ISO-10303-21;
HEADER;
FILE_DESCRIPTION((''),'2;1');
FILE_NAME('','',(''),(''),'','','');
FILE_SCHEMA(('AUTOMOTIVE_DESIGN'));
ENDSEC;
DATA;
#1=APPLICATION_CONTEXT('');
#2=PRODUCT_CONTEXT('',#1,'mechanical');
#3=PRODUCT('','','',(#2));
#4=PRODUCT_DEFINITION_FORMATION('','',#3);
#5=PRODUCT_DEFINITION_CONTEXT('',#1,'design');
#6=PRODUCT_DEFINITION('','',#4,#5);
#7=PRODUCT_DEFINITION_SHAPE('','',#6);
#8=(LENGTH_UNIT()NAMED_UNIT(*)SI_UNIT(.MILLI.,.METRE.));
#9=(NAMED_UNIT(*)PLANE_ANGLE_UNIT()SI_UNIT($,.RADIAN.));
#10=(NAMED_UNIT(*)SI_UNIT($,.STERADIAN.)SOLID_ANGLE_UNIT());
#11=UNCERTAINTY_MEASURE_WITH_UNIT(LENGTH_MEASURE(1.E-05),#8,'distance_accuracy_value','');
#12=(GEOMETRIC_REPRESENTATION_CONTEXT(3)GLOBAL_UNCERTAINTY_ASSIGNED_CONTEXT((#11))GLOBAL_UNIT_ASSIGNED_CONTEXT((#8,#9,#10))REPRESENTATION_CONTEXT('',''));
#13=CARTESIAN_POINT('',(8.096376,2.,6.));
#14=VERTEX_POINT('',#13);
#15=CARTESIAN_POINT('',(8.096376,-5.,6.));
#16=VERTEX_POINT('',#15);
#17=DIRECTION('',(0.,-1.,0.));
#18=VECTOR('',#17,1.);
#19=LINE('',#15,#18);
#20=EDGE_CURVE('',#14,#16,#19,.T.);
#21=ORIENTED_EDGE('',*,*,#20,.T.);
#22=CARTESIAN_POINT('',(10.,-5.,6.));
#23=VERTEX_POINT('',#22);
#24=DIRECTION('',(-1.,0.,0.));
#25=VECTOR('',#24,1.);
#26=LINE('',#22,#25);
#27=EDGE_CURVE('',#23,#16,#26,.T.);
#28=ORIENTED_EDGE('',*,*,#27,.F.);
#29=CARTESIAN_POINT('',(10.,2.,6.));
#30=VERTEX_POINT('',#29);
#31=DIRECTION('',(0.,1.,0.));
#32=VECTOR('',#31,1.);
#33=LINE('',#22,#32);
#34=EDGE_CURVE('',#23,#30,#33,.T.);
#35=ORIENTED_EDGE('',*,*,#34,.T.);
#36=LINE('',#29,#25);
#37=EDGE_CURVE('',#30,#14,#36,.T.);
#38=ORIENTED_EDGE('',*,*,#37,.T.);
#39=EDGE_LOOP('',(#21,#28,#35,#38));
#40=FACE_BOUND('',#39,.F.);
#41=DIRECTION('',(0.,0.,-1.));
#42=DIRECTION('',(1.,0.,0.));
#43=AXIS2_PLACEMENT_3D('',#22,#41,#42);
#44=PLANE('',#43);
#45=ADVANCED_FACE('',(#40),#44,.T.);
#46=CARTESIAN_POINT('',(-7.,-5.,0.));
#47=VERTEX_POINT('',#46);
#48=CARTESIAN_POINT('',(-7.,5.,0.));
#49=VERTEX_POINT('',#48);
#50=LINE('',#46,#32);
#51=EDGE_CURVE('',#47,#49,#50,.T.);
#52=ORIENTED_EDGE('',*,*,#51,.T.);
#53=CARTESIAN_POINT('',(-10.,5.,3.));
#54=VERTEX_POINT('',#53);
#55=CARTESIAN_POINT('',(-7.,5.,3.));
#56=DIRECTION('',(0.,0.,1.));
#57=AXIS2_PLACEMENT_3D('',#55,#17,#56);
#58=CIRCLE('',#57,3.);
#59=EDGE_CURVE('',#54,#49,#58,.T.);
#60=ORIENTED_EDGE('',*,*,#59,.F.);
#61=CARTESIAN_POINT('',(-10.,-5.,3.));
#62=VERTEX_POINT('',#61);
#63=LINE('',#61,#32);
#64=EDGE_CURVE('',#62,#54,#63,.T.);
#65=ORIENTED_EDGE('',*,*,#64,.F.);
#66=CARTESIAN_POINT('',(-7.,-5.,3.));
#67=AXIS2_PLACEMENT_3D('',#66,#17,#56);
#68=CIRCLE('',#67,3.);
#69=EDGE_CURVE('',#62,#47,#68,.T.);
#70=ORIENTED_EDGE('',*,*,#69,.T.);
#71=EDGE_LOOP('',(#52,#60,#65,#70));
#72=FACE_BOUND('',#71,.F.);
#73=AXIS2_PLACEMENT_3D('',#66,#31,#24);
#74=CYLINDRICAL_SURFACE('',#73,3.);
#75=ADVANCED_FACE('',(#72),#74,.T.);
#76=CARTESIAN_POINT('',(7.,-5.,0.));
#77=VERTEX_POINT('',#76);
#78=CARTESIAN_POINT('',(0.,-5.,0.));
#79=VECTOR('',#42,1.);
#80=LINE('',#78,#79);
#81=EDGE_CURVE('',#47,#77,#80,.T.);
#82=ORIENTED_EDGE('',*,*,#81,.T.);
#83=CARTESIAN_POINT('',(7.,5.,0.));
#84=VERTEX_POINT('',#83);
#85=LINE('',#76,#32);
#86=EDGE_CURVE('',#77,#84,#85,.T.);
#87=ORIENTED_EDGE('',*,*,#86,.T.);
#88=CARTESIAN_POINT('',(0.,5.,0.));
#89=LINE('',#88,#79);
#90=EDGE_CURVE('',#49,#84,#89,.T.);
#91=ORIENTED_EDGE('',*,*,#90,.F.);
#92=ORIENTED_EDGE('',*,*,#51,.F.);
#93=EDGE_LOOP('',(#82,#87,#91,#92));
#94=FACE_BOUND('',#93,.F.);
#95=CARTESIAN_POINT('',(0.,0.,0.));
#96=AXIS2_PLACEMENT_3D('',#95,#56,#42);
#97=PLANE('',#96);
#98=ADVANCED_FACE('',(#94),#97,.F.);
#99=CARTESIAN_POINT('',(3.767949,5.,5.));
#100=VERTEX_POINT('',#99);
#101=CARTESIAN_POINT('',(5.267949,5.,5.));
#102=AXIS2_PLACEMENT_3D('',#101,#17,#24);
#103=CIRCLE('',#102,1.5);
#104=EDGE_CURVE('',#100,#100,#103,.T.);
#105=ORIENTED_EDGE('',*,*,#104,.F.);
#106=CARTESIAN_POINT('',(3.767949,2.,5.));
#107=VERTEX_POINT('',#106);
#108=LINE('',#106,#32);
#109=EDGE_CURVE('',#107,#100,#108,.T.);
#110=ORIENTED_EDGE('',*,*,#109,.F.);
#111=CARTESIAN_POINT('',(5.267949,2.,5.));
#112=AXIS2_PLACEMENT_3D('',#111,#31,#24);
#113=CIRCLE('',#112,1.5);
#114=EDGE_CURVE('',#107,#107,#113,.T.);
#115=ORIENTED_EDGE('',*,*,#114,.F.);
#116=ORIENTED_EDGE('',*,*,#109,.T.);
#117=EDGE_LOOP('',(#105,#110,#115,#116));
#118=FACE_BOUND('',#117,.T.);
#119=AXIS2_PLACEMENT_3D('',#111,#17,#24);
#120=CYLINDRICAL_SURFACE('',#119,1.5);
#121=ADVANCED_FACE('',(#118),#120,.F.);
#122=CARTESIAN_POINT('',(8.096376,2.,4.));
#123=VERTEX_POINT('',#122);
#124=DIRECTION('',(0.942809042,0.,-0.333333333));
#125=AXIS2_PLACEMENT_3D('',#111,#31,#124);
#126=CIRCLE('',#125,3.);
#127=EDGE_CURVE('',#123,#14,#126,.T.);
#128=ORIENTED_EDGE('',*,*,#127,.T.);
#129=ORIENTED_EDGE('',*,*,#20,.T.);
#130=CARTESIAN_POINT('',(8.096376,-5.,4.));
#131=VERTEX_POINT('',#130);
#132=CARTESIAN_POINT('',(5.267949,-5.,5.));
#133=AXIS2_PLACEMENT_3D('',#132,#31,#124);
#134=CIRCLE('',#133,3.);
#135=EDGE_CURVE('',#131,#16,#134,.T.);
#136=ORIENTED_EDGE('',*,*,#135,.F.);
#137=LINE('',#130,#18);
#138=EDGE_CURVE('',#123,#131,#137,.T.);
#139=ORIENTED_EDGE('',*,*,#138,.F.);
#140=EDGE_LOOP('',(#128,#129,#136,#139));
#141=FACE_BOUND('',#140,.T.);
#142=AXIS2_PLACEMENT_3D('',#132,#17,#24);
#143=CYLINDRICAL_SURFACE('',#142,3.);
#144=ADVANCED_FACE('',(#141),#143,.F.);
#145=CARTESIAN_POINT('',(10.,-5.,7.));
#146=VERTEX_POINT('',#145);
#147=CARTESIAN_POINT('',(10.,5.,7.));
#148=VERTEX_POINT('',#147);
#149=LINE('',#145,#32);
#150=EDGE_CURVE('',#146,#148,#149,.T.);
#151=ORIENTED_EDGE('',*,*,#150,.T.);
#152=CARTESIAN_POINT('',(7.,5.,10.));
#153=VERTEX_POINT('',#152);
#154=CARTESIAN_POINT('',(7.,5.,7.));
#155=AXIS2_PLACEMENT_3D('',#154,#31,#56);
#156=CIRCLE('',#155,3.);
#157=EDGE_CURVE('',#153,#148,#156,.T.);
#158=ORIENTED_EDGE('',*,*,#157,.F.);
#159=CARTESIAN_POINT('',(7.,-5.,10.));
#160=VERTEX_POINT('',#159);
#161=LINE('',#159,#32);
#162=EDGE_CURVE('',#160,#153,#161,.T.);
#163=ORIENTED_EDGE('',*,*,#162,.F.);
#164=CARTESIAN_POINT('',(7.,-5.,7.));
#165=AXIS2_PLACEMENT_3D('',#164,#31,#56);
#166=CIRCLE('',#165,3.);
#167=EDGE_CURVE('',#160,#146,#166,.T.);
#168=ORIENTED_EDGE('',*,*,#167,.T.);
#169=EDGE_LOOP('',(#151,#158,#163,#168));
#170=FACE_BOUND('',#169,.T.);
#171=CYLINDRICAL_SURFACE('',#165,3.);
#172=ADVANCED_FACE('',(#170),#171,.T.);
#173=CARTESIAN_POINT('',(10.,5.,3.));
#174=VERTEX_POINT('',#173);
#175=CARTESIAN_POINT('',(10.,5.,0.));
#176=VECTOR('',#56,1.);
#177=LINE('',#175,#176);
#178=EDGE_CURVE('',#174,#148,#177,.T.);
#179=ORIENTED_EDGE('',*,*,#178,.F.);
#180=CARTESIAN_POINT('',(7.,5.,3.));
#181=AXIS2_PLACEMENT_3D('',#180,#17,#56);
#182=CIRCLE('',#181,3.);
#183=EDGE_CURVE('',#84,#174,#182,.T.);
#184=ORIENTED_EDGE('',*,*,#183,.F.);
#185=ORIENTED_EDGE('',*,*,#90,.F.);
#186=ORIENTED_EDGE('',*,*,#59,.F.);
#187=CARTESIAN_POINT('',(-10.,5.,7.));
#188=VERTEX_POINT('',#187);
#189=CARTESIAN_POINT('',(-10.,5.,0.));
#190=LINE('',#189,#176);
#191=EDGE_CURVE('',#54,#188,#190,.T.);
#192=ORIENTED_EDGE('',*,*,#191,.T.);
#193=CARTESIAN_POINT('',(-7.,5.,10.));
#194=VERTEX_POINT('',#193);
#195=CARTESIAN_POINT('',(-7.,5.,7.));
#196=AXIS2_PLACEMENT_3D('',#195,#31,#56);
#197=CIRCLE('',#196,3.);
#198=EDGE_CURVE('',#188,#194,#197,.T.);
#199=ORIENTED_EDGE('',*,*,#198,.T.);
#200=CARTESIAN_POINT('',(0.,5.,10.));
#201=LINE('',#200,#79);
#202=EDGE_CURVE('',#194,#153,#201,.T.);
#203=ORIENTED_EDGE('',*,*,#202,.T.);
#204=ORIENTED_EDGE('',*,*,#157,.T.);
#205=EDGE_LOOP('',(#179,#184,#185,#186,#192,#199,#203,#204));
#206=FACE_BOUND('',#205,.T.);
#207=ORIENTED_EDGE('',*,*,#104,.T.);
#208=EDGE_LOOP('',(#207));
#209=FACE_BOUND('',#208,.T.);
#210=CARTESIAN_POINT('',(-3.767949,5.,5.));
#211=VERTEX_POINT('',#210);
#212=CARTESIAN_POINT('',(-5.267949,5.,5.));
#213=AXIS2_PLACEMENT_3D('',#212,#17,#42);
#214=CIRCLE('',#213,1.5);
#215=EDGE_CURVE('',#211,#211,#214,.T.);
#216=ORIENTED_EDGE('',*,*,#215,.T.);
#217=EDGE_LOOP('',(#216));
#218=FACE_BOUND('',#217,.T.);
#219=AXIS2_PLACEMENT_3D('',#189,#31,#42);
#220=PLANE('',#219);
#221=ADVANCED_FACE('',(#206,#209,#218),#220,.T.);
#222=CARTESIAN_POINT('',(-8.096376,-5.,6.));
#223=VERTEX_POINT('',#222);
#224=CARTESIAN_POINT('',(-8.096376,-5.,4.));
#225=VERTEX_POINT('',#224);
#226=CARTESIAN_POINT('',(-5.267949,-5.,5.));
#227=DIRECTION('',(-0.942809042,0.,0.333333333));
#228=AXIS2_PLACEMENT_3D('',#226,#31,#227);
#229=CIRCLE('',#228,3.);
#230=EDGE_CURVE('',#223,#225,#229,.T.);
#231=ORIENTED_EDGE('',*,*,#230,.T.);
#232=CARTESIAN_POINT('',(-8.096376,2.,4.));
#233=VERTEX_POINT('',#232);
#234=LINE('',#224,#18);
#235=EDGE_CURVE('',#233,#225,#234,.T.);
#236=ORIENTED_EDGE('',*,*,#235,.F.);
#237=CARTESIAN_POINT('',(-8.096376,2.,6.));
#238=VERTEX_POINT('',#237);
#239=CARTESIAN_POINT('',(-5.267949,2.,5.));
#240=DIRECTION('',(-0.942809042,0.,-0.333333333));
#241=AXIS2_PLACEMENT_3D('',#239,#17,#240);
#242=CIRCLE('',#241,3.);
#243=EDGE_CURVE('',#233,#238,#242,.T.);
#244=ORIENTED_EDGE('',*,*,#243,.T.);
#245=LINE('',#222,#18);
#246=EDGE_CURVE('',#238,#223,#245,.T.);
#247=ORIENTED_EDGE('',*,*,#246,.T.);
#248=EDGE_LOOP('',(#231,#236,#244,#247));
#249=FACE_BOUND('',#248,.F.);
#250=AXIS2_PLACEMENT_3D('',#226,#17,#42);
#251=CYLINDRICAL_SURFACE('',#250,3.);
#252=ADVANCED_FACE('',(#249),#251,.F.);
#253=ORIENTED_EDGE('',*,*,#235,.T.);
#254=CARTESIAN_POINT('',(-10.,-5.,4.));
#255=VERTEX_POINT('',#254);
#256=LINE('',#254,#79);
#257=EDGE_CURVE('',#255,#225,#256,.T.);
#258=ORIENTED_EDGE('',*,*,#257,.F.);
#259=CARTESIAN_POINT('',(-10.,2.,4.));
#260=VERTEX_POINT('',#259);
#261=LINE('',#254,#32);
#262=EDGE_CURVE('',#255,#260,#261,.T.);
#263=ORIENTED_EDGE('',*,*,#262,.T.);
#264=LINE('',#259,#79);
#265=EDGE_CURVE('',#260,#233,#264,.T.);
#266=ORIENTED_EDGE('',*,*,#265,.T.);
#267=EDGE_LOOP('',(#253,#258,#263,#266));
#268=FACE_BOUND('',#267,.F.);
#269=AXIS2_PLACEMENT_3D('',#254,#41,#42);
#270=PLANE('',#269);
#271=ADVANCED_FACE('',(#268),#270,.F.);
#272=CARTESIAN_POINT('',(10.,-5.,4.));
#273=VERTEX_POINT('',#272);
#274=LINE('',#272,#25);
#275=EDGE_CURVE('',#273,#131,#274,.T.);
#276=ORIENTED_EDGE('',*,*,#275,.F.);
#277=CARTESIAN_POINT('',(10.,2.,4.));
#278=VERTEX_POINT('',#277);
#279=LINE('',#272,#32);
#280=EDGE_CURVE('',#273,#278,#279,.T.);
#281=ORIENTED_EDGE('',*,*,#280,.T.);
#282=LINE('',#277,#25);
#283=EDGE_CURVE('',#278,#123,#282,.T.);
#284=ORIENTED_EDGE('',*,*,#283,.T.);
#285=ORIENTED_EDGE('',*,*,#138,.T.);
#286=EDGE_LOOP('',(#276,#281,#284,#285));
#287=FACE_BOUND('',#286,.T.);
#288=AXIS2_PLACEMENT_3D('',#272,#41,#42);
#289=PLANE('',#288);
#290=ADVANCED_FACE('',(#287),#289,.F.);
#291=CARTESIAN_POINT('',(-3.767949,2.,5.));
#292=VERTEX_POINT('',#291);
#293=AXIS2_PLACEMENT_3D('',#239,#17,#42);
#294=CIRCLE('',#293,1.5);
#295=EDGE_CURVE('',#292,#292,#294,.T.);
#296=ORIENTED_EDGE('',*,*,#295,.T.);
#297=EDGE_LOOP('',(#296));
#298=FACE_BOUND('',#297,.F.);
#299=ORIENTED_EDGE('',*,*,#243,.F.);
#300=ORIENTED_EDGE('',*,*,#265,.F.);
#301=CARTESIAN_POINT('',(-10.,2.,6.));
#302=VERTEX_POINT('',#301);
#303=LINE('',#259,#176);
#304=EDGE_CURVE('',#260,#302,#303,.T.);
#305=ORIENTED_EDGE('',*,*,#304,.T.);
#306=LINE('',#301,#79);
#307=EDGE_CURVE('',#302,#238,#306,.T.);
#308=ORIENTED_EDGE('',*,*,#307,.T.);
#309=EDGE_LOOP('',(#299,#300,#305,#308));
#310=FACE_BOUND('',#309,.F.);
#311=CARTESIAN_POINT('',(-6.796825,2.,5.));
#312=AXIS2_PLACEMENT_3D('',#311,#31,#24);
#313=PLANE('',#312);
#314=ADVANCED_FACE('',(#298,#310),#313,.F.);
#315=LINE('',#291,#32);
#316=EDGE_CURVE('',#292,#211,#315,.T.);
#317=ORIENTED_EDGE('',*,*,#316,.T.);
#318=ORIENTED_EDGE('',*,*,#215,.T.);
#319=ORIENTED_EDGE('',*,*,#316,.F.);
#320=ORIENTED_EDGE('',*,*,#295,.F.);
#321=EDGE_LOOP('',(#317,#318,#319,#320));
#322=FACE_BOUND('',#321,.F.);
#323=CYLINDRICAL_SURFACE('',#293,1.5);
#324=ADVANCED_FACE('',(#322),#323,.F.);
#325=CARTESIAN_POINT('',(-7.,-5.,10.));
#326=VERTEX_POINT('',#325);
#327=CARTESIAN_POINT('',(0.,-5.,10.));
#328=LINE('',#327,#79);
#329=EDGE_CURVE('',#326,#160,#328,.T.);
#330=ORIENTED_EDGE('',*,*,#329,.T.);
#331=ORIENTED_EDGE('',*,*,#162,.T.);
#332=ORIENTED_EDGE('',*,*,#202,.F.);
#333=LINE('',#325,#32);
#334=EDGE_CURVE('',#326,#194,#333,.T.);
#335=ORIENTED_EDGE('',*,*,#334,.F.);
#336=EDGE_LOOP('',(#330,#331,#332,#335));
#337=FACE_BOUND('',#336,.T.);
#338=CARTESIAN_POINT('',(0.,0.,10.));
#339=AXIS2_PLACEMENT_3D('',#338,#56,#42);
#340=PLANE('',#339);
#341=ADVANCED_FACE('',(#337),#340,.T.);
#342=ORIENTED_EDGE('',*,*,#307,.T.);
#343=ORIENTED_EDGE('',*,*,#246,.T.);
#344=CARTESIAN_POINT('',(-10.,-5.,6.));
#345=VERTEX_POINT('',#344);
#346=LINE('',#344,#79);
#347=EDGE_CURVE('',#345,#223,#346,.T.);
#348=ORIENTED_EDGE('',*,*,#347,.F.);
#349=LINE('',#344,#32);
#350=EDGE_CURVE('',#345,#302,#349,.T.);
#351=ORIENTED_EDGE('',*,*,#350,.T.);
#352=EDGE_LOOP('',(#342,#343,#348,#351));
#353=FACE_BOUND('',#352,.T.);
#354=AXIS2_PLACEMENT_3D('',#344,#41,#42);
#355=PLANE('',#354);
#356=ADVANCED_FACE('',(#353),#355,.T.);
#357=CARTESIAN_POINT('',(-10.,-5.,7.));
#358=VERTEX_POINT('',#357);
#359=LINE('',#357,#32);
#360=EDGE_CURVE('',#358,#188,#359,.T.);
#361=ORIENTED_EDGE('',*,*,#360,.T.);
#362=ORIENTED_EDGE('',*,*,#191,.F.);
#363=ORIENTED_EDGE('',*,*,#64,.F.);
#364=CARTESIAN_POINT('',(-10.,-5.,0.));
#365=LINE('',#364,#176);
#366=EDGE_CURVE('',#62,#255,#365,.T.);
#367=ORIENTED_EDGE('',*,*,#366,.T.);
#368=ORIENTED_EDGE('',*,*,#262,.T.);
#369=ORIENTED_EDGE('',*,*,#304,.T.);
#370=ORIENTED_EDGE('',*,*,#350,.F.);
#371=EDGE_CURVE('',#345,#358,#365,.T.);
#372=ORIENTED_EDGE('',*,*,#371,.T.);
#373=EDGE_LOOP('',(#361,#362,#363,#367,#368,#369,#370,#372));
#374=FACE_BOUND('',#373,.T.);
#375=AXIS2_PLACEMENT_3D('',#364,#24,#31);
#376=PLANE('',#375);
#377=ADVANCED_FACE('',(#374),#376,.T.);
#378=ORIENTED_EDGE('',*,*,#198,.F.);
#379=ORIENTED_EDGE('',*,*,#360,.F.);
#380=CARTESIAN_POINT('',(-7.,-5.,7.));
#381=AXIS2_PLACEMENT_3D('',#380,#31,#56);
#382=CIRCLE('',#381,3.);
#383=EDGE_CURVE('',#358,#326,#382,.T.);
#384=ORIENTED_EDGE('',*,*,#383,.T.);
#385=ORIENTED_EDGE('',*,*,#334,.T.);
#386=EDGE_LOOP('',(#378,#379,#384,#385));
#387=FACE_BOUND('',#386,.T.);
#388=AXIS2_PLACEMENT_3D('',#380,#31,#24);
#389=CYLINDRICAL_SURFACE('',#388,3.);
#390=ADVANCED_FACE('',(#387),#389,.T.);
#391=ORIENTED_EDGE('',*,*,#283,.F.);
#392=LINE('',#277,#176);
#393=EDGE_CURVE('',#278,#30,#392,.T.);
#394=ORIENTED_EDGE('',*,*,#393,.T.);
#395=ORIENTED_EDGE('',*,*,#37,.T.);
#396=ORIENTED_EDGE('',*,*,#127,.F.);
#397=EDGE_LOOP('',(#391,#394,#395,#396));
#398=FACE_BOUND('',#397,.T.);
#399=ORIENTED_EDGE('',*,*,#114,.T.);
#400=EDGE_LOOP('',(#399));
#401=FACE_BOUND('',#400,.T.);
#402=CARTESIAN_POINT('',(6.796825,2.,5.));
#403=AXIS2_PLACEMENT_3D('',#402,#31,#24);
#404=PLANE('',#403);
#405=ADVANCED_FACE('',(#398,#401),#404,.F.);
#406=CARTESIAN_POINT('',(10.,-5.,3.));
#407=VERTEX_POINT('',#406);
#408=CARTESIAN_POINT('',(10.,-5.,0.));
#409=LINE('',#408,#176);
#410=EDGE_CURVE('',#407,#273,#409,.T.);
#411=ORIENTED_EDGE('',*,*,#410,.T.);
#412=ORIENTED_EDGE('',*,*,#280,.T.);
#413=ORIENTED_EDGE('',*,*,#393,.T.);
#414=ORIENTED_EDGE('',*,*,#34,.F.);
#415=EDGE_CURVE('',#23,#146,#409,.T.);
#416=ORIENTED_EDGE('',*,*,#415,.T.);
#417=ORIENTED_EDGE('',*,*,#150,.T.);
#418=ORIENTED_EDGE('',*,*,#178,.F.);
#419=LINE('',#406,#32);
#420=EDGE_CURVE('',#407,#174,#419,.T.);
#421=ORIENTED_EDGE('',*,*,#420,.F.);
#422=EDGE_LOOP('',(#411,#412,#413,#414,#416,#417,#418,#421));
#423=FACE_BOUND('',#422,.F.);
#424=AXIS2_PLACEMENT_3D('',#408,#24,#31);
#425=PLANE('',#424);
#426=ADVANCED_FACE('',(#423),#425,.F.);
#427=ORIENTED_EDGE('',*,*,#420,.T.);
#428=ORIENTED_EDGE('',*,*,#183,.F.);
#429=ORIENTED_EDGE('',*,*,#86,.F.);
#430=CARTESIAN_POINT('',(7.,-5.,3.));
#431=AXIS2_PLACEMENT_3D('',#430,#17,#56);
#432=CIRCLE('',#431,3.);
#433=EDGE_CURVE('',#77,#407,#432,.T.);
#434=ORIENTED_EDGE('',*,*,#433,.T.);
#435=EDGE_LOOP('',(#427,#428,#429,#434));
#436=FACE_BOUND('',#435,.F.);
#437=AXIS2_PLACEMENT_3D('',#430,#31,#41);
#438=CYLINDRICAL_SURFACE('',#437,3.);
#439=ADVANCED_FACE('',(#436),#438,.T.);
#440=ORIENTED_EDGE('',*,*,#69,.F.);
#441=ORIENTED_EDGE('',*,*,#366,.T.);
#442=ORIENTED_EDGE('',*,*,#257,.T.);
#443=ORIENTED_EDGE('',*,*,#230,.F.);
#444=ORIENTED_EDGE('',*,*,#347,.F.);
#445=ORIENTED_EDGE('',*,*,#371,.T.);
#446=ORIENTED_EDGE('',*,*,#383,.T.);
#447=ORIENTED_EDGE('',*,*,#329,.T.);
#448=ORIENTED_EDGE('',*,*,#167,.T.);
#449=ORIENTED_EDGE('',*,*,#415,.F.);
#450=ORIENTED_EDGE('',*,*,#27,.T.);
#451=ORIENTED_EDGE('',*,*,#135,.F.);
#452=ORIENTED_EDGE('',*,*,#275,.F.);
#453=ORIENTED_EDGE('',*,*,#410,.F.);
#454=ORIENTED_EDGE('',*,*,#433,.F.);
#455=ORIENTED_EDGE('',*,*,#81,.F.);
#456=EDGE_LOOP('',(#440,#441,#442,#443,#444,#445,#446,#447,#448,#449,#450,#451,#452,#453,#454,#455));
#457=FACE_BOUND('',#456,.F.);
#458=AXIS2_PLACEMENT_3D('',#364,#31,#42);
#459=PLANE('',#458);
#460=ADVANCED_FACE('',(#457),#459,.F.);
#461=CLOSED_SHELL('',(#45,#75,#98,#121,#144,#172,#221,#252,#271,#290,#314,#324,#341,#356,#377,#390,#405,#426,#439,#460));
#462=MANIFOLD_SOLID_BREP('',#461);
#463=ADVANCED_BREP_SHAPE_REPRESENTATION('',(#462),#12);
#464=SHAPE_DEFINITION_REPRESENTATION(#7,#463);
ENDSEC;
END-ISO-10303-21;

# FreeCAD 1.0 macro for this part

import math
import FreeCAD as App
import Part
import Sketcher

V = App.Vector


def edges_at(feature, points):
    """Names of the edges that pass closest to the given points."""
    edges = feature.Shape.Edges
    near = lambda p: min(range(len(edges)), key=lambda i: edges[i].distToShape(Part.Vertex(*p))[0])
    return sorted({f"Edge{near(p) + 1}" for p in points})

doc = App.newDocument("Part")
body = doc.addObject("PartDesign::Body", "Body")

# Sketch on XY plane
sketch1 = body.newObject("Sketcher::SketchObject", "Sketch")
sketch1.AttachmentSupport = (doc.getObject("XY_Plane"), [""])
sketch1.MapMode = "FlatFace"
sketch1.addGeometry([
    Part.LineSegment(V(-10, 5, 0), V(-10, -5, 0)),
    Part.LineSegment(V(-10, -5, 0), V(10, -5, 0)),
    Part.LineSegment(V(10, -5, 0), V(10, 5, 0)),
    Part.LineSegment(V(10, 5, 0), V(-10, 5, 0)),
], False)
sketch1.addConstraint([
    Sketcher.Constraint("Coincident", 0, 2, 1, 1),
    Sketcher.Constraint("Coincident", 1, 2, 2, 1),
    Sketcher.Constraint("Coincident", 2, 2, 3, 1),
    Sketcher.Constraint("Coincident", 3, 2, 0, 1),
    Sketcher.Constraint("Vertical", 0),
    Sketcher.Constraint("Horizontal", 1),
    Sketcher.Constraint("Vertical", 2),
    Sketcher.Constraint("Horizontal", 3),
    Sketcher.Constraint("Symmetric", 0, 2, 2, 2, -1, 1),
    Sketcher.Constraint("DistanceX", 1, 1, 1, 2, 20.0),
    Sketcher.Constraint("DistanceY", 0, 2, 0, 1, 10.0),
])
pad1 = body.newObject("PartDesign::Pad", "Pad")
pad1.Profile = sketch1
pad1.Length = 10

# Sketch on XZ plane
sketch2 = body.newObject("Sketcher::SketchObject", "Sketch001")
sketch2.AttachmentSupport = (doc.getObject("XZ_Plane"), [""])
sketch2.MapMode = "FlatFace"
sketch2.AttachmentOffset = App.Placement(V(0, 0, 5), App.Rotation())
sketch2.addGeometry([
    Part.LineSegment(V(-10, 6, 0), V(-10, 4, 0)),
    Part.LineSegment(V(-10, 4, 0), V(-7, 4, 0)),
    Part.ArcOfCircle(Part.Circle(V(-5.3, 5, 0), V(0, 0, 1), 2), math.radians(-150), math.radians(150)),
    Part.LineSegment(V(-7, 6, 0), V(-10, 6, 0)),
], False)
sketch2.addConstraint([
    Sketcher.Constraint("Coincident", 0, 2, 1, 1),
    Sketcher.Constraint("Coincident", 1, 2, 2, 1),
    Sketcher.Constraint("Coincident", 2, 2, 3, 1),
    Sketcher.Constraint("Coincident", 3, 2, 0, 1),
    Sketcher.Constraint("Vertical", 0),
    Sketcher.Constraint("Horizontal", 1),
    Sketcher.Constraint("Horizontal", 3),
    Sketcher.Constraint("Vertical", 1, 2, 2, 2),
    Sketcher.Constraint("Radius", 2, 2.0),
    Sketcher.Constraint("DistanceX", 1, 1, 1, 2, 3.0),
    Sketcher.Constraint("DistanceY", 0, 2, 0, 1, 2.0),
    Sketcher.Constraint("DistanceY", -1, 1, 2, 3, 5.0),
    Sketcher.Constraint("DistanceX", 0, 2, -1, 1, 10.0),
])
pocket1 = body.newObject("PartDesign::Pocket", "Pocket")
pocket1.Profile = sketch2
pocket1.Length = 7

# Sketch on XZ plane
sketch3 = body.newObject("Sketcher::SketchObject", "Sketch002")
sketch3.AttachmentSupport = (doc.getObject("XZ_Plane"), [""])
sketch3.MapMode = "FlatFace"
sketch3.AttachmentOffset = App.Placement(V(0, 0, 5), App.Rotation())
sketch3.addGeometry(Part.Circle(V(-5.3, 5, 0), V(0, 0, 1), 3), False)
sketch3.addConstraint([
    Sketcher.Constraint("Diameter", 0, 6.0),
    Sketcher.Constraint("DistanceY", -1, 1, 0, 3, 5.0),
    Sketcher.Constraint("DistanceX", 0, 3, -1, 1, 5.267949),
])
pocket2 = body.newObject("PartDesign::Pocket", "Pocket001")
pocket2.Profile = sketch3
pocket2.Length = 7

# Sketch on XZ plane
sketch4 = body.newObject("Sketcher::SketchObject", "Sketch003")
sketch4.AttachmentSupport = (doc.getObject("XZ_Plane"), [""])
sketch4.MapMode = "FlatFace"
sketch4.AttachmentOffset = App.Placement(V(0, 0, -2), App.Rotation())
sketch4.addGeometry(Part.Circle(V(-5.3, 5, 0), V(0, 0, 1), 1.5), False)
sketch4.addConstraint([
    Sketcher.Constraint("Diameter", 0, 3.0),
    Sketcher.Constraint("DistanceY", -1, 1, 0, 3, 5.0),
    Sketcher.Constraint("DistanceX", 0, 3, -1, 1, 5.267949),
])
pocket3 = body.newObject("PartDesign::Pocket", "Pocket002")
pocket3.Profile = sketch4
pocket3.Length = 5
doc.recompute()

mirrored = body.newObject("PartDesign::Mirrored", "Mirrored")
mirrored.Originals = [pocket1, pocket2, pocket3]
mirrored.MirrorPlane = (doc.getObject("YZ_Plane"), [""])
body.Tip = mirrored
doc.recompute()

fillet = body.newObject("PartDesign::Fillet", "Fillet")
fillet.Base = (mirrored, edges_at(mirrored, [
    (-10, 0, 10),
    (-10, 0, 0),
    (10, 0, 10),
    (10, 0, 0),
]))
fillet.Radius = 3

doc.recompute()
